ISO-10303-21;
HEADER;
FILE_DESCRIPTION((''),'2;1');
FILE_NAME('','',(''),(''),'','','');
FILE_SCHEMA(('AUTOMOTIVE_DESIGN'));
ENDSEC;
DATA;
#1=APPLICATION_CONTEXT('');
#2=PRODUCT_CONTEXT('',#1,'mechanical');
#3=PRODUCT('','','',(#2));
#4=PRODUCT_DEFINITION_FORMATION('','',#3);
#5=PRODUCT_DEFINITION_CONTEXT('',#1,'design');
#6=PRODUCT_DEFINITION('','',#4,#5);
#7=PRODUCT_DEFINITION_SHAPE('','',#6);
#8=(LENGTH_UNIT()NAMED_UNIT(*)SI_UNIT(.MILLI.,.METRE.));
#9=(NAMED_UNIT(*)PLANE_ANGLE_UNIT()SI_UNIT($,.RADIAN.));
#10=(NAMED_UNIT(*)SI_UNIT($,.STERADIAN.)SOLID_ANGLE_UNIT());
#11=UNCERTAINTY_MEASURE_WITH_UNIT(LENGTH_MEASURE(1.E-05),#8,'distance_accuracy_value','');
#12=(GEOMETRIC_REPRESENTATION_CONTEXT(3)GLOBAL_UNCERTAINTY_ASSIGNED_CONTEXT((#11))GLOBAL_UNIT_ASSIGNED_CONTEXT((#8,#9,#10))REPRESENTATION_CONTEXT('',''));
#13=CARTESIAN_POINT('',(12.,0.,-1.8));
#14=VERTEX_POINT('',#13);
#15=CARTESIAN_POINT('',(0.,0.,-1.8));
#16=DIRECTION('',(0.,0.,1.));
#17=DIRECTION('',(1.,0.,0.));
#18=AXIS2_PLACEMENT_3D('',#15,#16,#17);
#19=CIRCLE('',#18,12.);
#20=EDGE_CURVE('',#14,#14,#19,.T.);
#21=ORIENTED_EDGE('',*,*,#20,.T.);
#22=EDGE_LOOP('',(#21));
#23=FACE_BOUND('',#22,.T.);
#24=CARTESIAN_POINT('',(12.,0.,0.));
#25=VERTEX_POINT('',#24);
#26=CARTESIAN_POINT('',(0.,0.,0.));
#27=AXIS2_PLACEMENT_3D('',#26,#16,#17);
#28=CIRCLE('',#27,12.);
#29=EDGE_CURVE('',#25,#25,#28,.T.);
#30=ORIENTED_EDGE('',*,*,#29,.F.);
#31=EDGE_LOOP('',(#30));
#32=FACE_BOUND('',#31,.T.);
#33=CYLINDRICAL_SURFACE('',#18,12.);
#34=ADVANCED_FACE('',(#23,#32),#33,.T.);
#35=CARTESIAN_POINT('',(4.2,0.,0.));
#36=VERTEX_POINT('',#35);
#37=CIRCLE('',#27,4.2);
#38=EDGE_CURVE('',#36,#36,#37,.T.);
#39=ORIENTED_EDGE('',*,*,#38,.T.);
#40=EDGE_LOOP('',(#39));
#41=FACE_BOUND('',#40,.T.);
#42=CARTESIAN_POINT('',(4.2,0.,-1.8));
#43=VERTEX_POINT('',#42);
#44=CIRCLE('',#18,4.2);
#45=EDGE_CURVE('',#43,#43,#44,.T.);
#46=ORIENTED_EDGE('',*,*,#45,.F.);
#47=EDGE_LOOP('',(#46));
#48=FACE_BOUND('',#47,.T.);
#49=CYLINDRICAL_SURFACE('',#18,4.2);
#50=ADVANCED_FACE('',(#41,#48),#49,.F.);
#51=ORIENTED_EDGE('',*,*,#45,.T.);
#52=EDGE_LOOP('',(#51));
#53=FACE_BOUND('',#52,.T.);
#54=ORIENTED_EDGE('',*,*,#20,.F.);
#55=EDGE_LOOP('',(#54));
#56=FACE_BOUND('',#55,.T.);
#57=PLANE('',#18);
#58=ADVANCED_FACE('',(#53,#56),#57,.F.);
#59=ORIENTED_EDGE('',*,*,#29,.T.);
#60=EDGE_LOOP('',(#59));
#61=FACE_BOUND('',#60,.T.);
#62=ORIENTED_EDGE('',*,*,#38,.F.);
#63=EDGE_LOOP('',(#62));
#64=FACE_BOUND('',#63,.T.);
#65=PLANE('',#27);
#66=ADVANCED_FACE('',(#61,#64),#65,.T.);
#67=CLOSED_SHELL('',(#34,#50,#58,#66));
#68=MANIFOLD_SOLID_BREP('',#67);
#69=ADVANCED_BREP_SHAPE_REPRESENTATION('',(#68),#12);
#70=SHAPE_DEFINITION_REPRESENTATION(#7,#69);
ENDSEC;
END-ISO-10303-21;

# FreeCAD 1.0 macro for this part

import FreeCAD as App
import Part
import Sketcher

doc = App.newDocument("Part")
body = doc.addObject("PartDesign::Body", "Body")

# Sketch on XY plane
sketch1 = body.newObject("Sketcher::SketchObject", "Sketch")
sketch1.AttachmentSupport = (doc.getObject("XY_Plane"), [""])
sketch1.MapMode = "FlatFace"
sketch1.addGeometry([
    Part.Circle(App.Vector(0, 0, 0), App.Vector(0, 0, 1), 12),
    Part.Circle(App.Vector(0, 0, 0), App.Vector(0, 0, 1), 4.2),
], False)
sketch1.addConstraint([
    Sketcher.Constraint("Coincident", 0, 3, -1, 1),
    Sketcher.Constraint("Coincident", 1, 3, -1, 1),
    Sketcher.Constraint("Diameter", 0, 24.0),
    Sketcher.Constraint("Diameter", 1, 8.4),
])
pad1 = body.newObject("PartDesign::Pad", "Pad")
pad1.Profile = sketch1
pad1.Length = 1.8
pad1.Reversed = True

doc.recompute()
